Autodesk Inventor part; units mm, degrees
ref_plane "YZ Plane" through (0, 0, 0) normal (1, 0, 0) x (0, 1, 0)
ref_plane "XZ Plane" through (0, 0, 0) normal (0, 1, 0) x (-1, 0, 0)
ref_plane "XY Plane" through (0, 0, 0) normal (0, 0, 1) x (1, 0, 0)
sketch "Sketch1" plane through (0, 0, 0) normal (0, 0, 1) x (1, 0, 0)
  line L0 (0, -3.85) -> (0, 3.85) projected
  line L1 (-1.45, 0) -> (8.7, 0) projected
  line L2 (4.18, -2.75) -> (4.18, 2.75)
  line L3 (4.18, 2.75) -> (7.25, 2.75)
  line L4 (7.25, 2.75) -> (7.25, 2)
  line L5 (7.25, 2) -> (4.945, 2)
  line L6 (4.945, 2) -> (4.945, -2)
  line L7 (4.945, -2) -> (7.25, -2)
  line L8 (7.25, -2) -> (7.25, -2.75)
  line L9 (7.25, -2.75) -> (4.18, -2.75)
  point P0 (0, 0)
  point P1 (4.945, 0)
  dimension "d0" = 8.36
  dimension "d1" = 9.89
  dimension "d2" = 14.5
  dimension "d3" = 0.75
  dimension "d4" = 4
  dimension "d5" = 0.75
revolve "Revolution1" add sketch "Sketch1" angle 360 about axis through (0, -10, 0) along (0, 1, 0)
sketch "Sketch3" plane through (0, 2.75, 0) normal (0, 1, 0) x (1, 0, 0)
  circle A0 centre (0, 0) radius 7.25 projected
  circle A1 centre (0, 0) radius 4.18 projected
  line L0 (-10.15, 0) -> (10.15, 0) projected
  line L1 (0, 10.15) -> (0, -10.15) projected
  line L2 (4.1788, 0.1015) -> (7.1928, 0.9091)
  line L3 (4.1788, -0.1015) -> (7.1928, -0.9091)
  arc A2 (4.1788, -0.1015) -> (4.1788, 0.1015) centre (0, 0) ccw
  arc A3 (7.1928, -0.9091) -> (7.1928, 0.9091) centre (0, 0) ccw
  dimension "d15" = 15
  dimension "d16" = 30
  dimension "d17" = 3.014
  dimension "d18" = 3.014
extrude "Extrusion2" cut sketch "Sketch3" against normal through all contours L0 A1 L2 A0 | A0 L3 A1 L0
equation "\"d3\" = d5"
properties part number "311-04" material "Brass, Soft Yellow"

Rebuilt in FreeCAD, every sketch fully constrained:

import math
import FreeCAD as App
import Part
import Sketcher
Q = App.Units.Quantity

doc = App.newDocument("Part")
body = doc.addObject("PartDesign::Body", "Body")

# Sketch on XY plane
sketch1 = body.newObject("Sketcher::SketchObject", "Sketch")
sketch1.AttachmentSupport = (doc.getObject("XY_Plane"), [""])
sketch1.MapMode = "FlatFace"
sketch1.addGeometry(Part.LineSegment(App.Vector(4.2, 2.8, 0), App.Vector(4.2, -2.8, 0)), False)
sketch1.addGeometry(Part.LineSegment(App.Vector(4.2, -2.8, 0), App.Vector(7.2, -2.8, 0)), False)
sketch1.addGeometry(Part.LineSegment(App.Vector(7.2, -2.8, 0), App.Vector(7.2, -2, 0)), False)
sketch1.addGeometry(Part.LineSegment(App.Vector(7.2, -2, 0), App.Vector(4.9, -2, 0)), False)
sketch1.addGeometry(Part.LineSegment(App.Vector(4.9, -2, 0), App.Vector(4.9, 2, 0)), False)
sketch1.addGeometry(Part.LineSegment(App.Vector(4.9, 2, 0), App.Vector(7.2, 2, 0)), False)
sketch1.addGeometry(Part.LineSegment(App.Vector(7.2, 2, 0), App.Vector(7.2, 2.8, 0)), False)
sketch1.addGeometry(Part.LineSegment(App.Vector(7.2, 2.8, 0), App.Vector(4.2, 2.8, 0)), False)
sketch1.addConstraint(Sketcher.Constraint("Coincident", 0, 2, 1, 1))
sketch1.addConstraint(Sketcher.Constraint("Coincident", 1, 2, 2, 1))
sketch1.addConstraint(Sketcher.Constraint("Coincident", 2, 2, 3, 1))
sketch1.addConstraint(Sketcher.Constraint("Coincident", 3, 2, 4, 1))
sketch1.addConstraint(Sketcher.Constraint("Coincident", 4, 2, 5, 1))
sketch1.addConstraint(Sketcher.Constraint("Coincident", 5, 2, 6, 1))
sketch1.addConstraint(Sketcher.Constraint("Coincident", 6, 2, 7, 1))
sketch1.addConstraint(Sketcher.Constraint("Coincident", 7, 2, 0, 1))
sketch1.addConstraint(Sketcher.Constraint("Vertical", 0))
sketch1.addConstraint(Sketcher.Constraint("Horizontal", 1))
sketch1.addConstraint(Sketcher.Constraint("Vertical", 2))
sketch1.addConstraint(Sketcher.Constraint("Horizontal", 3))
sketch1.addConstraint(Sketcher.Constraint("Vertical", 4))
sketch1.addConstraint(Sketcher.Constraint("Horizontal", 5))
sketch1.addConstraint(Sketcher.Constraint("Vertical", 6))
sketch1.addConstraint(Sketcher.Constraint("Horizontal", 7))
sketch1.addConstraint(Sketcher.Constraint("Symmetric", 2, 2, 5, 2, -1))
sketch1.addConstraint(Sketcher.Constraint("Equal", 2, 6))
sketch1.addConstraint(Sketcher.Constraint("DistanceY", 4, 1, 4, 2, 4.0))
sketch1.addConstraint(Sketcher.Constraint("DistanceY", 2, 1, 2, 2, 0.75))
sketch1.addConstraint(Sketcher.Constraint("DistanceX", 1, 1, 1, 2, 3.07))
sketch1.addConstraint(Sketcher.Constraint("DistanceX", 3, 2, 3, 1, 2.305))
sketch1.addConstraint(Sketcher.Constraint("DistanceX", -1, 1, 0, 2, 4.18))
revolution = body.newObject("PartDesign::Revolution", "Revolution")
revolution.Profile = sketch1
revolution.ReferenceAxis = (sketch1, ["V_Axis"])
revolution.Angle = 360

# Sketch on XZ plane
sketch2 = body.newObject("Sketcher::SketchObject", "Sketch001")
sketch2.AttachmentSupport = (doc.getObject("XZ_Plane"), [""])
sketch2.MapMode = "FlatFace"
sketch2.AttachmentOffset = App.Placement(App.Vector(0, 0, -2.75), App.Rotation())
sketch2.addGeometry(Part.ArcOfCircle(Part.Circle(App.Vector(0, 0, 0), App.Vector(0, 0, 1), 4.18), math.radians(-1.39), math.radians(1.39)), False)
sketch2.addGeometry(Part.LineSegment(App.Vector(4.18, 0.1, 0), App.Vector(7.19, 0.91, 0)), False)
sketch2.addGeometry(Part.ArcOfCircle(Part.Circle(App.Vector(0, 0, 0), App.Vector(0, 0, 1), 7.25), math.radians(-7.2), math.radians(7.2)), False)
sketch2.addGeometry(Part.LineSegment(App.Vector(7.19, -0.91, 0), App.Vector(4.18, -0.1, 0)), False)
sketch2.addConstraint(Sketcher.Constraint("Coincident", 0, 2, 1, 1))
sketch2.addConstraint(Sketcher.Constraint("Coincident", 1, 2, 2, 2))
sketch2.addConstraint(Sketcher.Constraint("Coincident", 2, 1, 3, 1))
sketch2.addConstraint(Sketcher.Constraint("Coincident", 3, 2, 0, 1))
sketch2.addConstraint(Sketcher.Constraint("Coincident", 0, 3, -1, 1))
sketch2.addConstraint(Sketcher.Constraint("Coincident", 2, 3, -1, 1))
sketch2.addConstraint(Sketcher.Constraint("Vertical", 1, 2, 2, 1))
sketch2.addConstraint(Sketcher.Constraint("Vertical", 0, 2, 3, 2))
sketch2.addConstraint(Sketcher.Constraint("Angle", 1, Q("15 deg")))
sketch2.addConstraint(Sketcher.Constraint("Radius", 0, 4.18))
sketch2.addConstraint(Sketcher.Constraint("Radius", 2, 7.25))
sketch2.addConstraint(Sketcher.Constraint("DistanceX", 0, 2, 1, 2, 3.014))
pocket1 = body.newObject("PartDesign::Pocket", "Pocket")
pocket1.Profile = sketch2
pocket1.Type = "ThroughAll"
pocket1.Reversed = True

doc.recompute()
